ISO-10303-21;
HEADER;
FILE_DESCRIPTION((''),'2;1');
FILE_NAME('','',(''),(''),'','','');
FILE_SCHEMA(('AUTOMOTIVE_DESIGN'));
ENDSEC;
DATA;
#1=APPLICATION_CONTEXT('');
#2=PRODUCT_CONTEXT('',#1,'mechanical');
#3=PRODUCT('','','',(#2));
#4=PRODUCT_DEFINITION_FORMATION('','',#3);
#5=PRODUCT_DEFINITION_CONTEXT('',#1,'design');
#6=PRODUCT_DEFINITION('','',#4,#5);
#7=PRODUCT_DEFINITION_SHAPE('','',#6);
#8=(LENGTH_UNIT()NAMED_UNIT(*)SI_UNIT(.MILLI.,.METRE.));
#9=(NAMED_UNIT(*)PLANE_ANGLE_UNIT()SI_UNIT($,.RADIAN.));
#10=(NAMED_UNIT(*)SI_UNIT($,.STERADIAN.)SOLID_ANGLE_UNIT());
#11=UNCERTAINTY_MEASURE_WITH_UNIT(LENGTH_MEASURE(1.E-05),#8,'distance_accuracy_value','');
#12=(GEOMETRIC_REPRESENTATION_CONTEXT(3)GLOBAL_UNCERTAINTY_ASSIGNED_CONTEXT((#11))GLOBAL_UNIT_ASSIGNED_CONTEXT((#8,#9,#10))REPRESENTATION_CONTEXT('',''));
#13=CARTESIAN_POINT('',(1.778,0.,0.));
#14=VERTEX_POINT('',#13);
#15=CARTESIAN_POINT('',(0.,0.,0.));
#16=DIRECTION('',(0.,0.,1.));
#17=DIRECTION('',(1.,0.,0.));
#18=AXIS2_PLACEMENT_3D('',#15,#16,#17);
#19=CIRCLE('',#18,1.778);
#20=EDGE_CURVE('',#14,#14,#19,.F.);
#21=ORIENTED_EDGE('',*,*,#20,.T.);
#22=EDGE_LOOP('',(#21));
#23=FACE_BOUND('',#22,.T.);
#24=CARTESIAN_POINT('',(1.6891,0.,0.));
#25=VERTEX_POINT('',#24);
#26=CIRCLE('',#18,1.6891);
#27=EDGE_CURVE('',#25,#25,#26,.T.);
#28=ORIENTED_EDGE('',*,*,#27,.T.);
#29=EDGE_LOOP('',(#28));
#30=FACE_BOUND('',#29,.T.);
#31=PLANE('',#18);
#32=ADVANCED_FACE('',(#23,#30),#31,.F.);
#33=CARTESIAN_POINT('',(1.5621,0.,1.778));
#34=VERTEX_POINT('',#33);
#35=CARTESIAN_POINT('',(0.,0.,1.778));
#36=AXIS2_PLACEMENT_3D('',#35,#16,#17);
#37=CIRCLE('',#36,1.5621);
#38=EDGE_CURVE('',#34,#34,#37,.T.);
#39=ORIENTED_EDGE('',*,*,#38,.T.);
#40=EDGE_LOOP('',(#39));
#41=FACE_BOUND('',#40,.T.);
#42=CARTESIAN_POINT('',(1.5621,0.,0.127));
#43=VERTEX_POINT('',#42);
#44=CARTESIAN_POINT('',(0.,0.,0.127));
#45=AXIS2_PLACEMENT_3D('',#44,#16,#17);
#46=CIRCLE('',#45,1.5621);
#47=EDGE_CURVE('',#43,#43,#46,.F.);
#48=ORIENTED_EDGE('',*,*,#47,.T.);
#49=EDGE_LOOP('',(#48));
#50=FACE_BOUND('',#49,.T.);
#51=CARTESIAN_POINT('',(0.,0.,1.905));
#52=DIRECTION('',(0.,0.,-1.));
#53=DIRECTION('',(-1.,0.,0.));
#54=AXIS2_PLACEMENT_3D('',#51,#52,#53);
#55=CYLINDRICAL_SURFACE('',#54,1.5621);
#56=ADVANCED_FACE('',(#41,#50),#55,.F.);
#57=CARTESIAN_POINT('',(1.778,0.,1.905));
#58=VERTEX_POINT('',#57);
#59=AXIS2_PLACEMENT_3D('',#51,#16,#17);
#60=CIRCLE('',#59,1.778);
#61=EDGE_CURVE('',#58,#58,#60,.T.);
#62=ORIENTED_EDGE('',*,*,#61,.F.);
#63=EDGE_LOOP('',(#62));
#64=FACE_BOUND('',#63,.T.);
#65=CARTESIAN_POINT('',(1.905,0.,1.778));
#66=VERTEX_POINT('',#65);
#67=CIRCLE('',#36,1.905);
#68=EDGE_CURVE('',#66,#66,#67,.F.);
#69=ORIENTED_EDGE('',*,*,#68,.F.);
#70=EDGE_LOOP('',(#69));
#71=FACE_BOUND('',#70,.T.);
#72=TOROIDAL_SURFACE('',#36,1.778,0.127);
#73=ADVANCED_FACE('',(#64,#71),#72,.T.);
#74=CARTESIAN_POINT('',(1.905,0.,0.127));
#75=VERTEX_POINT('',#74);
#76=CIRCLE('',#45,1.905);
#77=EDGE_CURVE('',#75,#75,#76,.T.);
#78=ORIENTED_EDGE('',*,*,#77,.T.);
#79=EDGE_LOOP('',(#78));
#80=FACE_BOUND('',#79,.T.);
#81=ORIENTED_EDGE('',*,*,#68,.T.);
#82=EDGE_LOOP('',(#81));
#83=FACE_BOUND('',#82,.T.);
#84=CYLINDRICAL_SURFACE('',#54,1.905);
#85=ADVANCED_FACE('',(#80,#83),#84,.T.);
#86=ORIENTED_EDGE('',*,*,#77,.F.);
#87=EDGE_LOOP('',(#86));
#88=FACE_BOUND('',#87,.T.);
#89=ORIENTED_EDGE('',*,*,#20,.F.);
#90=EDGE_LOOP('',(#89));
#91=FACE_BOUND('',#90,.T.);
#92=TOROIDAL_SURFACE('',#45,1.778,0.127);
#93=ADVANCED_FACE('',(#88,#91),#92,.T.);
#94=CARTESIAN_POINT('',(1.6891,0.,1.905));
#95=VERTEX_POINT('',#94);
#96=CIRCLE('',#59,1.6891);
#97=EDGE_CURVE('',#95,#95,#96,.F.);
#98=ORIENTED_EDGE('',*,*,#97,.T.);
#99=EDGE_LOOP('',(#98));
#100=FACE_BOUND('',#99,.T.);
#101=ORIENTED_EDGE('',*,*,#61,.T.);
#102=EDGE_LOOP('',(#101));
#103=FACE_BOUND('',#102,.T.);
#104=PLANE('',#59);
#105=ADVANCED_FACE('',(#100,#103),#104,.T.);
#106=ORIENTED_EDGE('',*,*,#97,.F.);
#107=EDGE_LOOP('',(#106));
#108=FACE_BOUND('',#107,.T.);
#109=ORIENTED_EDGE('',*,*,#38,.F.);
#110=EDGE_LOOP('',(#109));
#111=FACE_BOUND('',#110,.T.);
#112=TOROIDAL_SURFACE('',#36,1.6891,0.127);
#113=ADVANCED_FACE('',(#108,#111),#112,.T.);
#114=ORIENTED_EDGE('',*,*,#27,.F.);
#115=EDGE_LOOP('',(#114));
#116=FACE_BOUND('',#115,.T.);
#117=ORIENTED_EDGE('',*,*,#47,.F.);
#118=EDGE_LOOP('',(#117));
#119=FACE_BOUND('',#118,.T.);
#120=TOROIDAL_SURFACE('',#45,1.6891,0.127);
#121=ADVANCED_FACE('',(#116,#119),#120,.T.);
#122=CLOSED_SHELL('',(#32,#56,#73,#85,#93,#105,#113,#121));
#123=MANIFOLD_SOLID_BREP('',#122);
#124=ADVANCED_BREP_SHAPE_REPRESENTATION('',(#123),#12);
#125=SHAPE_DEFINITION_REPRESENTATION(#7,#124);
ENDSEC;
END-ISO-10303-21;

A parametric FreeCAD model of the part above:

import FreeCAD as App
import Part
import Sketcher
from FreeCAD import Vector
Q = App.Units.Quantity


def edges_at(feature, points):
    """Names of the edges that pass closest to the given points."""
    edges = feature.Shape.Edges
    near = lambda p: min(range(len(edges)), key=lambda i: edges[i].distToShape(Part.Vertex(*p))[0])
    return sorted({f"Edge{near(p) + 1}" for p in points})

doc = App.newDocument("Part")
body = doc.addObject("PartDesign::Body", "Body")

sketch1 = doc.addObject("Sketcher::SketchObject", "Sketch")
body.addObject(sketch1)
sketch1.AttachmentSupport = (doc.XY_Plane, [""])
sketch1.MapMode = "FlatFace"
sketch1.addGeometry([
    Part.Circle(Vector(0, 0, 0), Vector(0, 0, 1), 1.905),
    Part.Circle(Vector(0, 0, 0), Vector(0, 0, 1), 1.5621),
], False)
sketch1.addConstraint([
    Sketcher.Constraint("Coincident", 0, 3, -1, 1),
    Sketcher.Constraint("Coincident", 1, 3, -1, 1),
    Sketcher.Constraint("Diameter", 0, Q("0.15 in")),
    Sketcher.Constraint("Diameter", 1, Q("0.123 in")),
])
pad1 = doc.addObject("PartDesign::Pad", "Pad")
body.addObject(pad1)
pad1.Profile = sketch1
pad1.Length = Q("0.075 in")
doc.recompute()

fillet = doc.addObject("PartDesign::Fillet", "Fillet")
body.addObject(fillet)
fillet.Base = (pad1, edges_at(pad1, [
    (-1.905, 0, 0),
    (-1.905, 0, 1.905),
    (-1.562, 0, 0),
    (-1.562, 0, 1.905),
]))
fillet.Radius = Q("0.005 in")

doc.recompute()
